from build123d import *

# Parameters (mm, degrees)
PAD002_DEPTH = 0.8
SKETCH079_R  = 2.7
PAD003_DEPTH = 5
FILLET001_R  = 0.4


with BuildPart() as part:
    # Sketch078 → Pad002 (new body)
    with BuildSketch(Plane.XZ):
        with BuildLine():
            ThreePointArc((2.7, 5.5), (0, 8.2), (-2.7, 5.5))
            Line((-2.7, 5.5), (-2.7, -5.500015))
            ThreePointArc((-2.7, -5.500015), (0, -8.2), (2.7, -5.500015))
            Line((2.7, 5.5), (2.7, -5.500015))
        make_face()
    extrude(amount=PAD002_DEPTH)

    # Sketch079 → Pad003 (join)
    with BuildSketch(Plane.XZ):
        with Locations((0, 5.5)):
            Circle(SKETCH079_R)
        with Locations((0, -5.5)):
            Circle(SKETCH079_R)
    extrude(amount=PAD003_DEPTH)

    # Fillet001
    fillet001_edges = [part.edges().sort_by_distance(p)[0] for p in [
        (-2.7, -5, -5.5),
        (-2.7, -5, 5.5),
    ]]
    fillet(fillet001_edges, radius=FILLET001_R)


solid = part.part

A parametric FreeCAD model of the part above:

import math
import FreeCAD as App
import Part
import Sketcher

V = App.Vector


def edges_at(feature, points):
    """Names of the edges that pass closest to the given points."""
    edges = feature.Shape.Edges
    near = lambda p: min(range(len(edges)), key=lambda i: edges[i].distToShape(Part.Vertex(*p))[0])
    return sorted({f"Edge{near(p) + 1}" for p in points})

doc = App.newDocument("Part")
body = doc.addObject("PartDesign::Body", "Body")

# Sketch on XZ plane
sketch1 = doc.addObject("Sketcher::SketchObject", "Sketch")
body.addObject(sketch1)
sketch1.AttachmentSupport = (doc.XZ_Plane, [""])
sketch1.MapMode = "FlatFace"
sketch1.addGeometry([
    Part.ArcOfCircle(Part.Circle(V(0, 5.5, 0), V(0, 0, 1), 2.7), math.radians(0), math.radians(180)),
    Part.LineSegment(V(-2.7, 5.5, 0), V(-2.7, -5.5, 0)),
    Part.ArcOfCircle(Part.Circle(V(0, -5.5, 0), V(0, 0, 1), 2.7), math.radians(-180), math.radians(0)),
    Part.LineSegment(V(2.7, -5.5, 0), V(2.7, 5.5, 0)),
], False)
sketch1.addConstraint([
    Sketcher.Constraint("Tangent", 0, 2, 1, 1),
    Sketcher.Constraint("Coincident", 1, 2, 2, 1),
    Sketcher.Constraint("Coincident", 2, 2, 3, 1),
    Sketcher.Constraint("Tangent", 3, 2, 0, 1),
    Sketcher.Constraint("Vertical", 1),
    Sketcher.Constraint("Vertical", 3),
    Sketcher.Constraint("Symmetric", 0, 3, 2, 3, -1, 1),
    Sketcher.Constraint("Horizontal", 1, 2, 2, 2),
    Sketcher.Constraint("Radius", 0, 2.7),
    Sketcher.Constraint("DistanceY", 2, 3, 0, 3, 11.0),
    Sketcher.Constraint("DistanceY", 1, 2, 1, 1, 11.000015),
])
pad1 = doc.addObject("PartDesign::Pad", "Pad")
body.addObject(pad1)
pad1.Profile = sketch1
pad1.Length = 0.8

# Sketch on XZ plane
sketch2 = doc.addObject("Sketcher::SketchObject", "Sketch001")
body.addObject(sketch2)
sketch2.AttachmentSupport = (doc.XZ_Plane, [""])
sketch2.MapMode = "FlatFace"
sketch2.addGeometry([
    Part.Circle(V(0, 5.5, 0), V(0, 0, 1), 2.7),
    Part.Circle(V(0, -5.5, 0), V(0, 0, 1), 2.7),
], False)
sketch2.addConstraint([
    Sketcher.Constraint("Equal", 0, 1),
    Sketcher.Constraint("Symmetric", 0, 3, 1, 3, -1, 1),
    Sketcher.Constraint("PointOnObject", 0, 3, -2),
    Sketcher.Constraint("Diameter", 0, 5.4),
    Sketcher.Constraint("DistanceY", 1, 3, 0, 3, 11.0),
])
pad2 = doc.addObject("PartDesign::Pad", "Pad001")
body.addObject(pad2)
pad2.Profile = sketch2
pad2.Length = 5
doc.recompute()

fillet = doc.addObject("PartDesign::Fillet", "Fillet")
body.addObject(fillet)
fillet.Base = (pad2, edges_at(pad2, [(-2.7, -5, -5.5), (-2.7, -5, 5.5)]))
fillet.Radius = 0.4

doc.recompute()
